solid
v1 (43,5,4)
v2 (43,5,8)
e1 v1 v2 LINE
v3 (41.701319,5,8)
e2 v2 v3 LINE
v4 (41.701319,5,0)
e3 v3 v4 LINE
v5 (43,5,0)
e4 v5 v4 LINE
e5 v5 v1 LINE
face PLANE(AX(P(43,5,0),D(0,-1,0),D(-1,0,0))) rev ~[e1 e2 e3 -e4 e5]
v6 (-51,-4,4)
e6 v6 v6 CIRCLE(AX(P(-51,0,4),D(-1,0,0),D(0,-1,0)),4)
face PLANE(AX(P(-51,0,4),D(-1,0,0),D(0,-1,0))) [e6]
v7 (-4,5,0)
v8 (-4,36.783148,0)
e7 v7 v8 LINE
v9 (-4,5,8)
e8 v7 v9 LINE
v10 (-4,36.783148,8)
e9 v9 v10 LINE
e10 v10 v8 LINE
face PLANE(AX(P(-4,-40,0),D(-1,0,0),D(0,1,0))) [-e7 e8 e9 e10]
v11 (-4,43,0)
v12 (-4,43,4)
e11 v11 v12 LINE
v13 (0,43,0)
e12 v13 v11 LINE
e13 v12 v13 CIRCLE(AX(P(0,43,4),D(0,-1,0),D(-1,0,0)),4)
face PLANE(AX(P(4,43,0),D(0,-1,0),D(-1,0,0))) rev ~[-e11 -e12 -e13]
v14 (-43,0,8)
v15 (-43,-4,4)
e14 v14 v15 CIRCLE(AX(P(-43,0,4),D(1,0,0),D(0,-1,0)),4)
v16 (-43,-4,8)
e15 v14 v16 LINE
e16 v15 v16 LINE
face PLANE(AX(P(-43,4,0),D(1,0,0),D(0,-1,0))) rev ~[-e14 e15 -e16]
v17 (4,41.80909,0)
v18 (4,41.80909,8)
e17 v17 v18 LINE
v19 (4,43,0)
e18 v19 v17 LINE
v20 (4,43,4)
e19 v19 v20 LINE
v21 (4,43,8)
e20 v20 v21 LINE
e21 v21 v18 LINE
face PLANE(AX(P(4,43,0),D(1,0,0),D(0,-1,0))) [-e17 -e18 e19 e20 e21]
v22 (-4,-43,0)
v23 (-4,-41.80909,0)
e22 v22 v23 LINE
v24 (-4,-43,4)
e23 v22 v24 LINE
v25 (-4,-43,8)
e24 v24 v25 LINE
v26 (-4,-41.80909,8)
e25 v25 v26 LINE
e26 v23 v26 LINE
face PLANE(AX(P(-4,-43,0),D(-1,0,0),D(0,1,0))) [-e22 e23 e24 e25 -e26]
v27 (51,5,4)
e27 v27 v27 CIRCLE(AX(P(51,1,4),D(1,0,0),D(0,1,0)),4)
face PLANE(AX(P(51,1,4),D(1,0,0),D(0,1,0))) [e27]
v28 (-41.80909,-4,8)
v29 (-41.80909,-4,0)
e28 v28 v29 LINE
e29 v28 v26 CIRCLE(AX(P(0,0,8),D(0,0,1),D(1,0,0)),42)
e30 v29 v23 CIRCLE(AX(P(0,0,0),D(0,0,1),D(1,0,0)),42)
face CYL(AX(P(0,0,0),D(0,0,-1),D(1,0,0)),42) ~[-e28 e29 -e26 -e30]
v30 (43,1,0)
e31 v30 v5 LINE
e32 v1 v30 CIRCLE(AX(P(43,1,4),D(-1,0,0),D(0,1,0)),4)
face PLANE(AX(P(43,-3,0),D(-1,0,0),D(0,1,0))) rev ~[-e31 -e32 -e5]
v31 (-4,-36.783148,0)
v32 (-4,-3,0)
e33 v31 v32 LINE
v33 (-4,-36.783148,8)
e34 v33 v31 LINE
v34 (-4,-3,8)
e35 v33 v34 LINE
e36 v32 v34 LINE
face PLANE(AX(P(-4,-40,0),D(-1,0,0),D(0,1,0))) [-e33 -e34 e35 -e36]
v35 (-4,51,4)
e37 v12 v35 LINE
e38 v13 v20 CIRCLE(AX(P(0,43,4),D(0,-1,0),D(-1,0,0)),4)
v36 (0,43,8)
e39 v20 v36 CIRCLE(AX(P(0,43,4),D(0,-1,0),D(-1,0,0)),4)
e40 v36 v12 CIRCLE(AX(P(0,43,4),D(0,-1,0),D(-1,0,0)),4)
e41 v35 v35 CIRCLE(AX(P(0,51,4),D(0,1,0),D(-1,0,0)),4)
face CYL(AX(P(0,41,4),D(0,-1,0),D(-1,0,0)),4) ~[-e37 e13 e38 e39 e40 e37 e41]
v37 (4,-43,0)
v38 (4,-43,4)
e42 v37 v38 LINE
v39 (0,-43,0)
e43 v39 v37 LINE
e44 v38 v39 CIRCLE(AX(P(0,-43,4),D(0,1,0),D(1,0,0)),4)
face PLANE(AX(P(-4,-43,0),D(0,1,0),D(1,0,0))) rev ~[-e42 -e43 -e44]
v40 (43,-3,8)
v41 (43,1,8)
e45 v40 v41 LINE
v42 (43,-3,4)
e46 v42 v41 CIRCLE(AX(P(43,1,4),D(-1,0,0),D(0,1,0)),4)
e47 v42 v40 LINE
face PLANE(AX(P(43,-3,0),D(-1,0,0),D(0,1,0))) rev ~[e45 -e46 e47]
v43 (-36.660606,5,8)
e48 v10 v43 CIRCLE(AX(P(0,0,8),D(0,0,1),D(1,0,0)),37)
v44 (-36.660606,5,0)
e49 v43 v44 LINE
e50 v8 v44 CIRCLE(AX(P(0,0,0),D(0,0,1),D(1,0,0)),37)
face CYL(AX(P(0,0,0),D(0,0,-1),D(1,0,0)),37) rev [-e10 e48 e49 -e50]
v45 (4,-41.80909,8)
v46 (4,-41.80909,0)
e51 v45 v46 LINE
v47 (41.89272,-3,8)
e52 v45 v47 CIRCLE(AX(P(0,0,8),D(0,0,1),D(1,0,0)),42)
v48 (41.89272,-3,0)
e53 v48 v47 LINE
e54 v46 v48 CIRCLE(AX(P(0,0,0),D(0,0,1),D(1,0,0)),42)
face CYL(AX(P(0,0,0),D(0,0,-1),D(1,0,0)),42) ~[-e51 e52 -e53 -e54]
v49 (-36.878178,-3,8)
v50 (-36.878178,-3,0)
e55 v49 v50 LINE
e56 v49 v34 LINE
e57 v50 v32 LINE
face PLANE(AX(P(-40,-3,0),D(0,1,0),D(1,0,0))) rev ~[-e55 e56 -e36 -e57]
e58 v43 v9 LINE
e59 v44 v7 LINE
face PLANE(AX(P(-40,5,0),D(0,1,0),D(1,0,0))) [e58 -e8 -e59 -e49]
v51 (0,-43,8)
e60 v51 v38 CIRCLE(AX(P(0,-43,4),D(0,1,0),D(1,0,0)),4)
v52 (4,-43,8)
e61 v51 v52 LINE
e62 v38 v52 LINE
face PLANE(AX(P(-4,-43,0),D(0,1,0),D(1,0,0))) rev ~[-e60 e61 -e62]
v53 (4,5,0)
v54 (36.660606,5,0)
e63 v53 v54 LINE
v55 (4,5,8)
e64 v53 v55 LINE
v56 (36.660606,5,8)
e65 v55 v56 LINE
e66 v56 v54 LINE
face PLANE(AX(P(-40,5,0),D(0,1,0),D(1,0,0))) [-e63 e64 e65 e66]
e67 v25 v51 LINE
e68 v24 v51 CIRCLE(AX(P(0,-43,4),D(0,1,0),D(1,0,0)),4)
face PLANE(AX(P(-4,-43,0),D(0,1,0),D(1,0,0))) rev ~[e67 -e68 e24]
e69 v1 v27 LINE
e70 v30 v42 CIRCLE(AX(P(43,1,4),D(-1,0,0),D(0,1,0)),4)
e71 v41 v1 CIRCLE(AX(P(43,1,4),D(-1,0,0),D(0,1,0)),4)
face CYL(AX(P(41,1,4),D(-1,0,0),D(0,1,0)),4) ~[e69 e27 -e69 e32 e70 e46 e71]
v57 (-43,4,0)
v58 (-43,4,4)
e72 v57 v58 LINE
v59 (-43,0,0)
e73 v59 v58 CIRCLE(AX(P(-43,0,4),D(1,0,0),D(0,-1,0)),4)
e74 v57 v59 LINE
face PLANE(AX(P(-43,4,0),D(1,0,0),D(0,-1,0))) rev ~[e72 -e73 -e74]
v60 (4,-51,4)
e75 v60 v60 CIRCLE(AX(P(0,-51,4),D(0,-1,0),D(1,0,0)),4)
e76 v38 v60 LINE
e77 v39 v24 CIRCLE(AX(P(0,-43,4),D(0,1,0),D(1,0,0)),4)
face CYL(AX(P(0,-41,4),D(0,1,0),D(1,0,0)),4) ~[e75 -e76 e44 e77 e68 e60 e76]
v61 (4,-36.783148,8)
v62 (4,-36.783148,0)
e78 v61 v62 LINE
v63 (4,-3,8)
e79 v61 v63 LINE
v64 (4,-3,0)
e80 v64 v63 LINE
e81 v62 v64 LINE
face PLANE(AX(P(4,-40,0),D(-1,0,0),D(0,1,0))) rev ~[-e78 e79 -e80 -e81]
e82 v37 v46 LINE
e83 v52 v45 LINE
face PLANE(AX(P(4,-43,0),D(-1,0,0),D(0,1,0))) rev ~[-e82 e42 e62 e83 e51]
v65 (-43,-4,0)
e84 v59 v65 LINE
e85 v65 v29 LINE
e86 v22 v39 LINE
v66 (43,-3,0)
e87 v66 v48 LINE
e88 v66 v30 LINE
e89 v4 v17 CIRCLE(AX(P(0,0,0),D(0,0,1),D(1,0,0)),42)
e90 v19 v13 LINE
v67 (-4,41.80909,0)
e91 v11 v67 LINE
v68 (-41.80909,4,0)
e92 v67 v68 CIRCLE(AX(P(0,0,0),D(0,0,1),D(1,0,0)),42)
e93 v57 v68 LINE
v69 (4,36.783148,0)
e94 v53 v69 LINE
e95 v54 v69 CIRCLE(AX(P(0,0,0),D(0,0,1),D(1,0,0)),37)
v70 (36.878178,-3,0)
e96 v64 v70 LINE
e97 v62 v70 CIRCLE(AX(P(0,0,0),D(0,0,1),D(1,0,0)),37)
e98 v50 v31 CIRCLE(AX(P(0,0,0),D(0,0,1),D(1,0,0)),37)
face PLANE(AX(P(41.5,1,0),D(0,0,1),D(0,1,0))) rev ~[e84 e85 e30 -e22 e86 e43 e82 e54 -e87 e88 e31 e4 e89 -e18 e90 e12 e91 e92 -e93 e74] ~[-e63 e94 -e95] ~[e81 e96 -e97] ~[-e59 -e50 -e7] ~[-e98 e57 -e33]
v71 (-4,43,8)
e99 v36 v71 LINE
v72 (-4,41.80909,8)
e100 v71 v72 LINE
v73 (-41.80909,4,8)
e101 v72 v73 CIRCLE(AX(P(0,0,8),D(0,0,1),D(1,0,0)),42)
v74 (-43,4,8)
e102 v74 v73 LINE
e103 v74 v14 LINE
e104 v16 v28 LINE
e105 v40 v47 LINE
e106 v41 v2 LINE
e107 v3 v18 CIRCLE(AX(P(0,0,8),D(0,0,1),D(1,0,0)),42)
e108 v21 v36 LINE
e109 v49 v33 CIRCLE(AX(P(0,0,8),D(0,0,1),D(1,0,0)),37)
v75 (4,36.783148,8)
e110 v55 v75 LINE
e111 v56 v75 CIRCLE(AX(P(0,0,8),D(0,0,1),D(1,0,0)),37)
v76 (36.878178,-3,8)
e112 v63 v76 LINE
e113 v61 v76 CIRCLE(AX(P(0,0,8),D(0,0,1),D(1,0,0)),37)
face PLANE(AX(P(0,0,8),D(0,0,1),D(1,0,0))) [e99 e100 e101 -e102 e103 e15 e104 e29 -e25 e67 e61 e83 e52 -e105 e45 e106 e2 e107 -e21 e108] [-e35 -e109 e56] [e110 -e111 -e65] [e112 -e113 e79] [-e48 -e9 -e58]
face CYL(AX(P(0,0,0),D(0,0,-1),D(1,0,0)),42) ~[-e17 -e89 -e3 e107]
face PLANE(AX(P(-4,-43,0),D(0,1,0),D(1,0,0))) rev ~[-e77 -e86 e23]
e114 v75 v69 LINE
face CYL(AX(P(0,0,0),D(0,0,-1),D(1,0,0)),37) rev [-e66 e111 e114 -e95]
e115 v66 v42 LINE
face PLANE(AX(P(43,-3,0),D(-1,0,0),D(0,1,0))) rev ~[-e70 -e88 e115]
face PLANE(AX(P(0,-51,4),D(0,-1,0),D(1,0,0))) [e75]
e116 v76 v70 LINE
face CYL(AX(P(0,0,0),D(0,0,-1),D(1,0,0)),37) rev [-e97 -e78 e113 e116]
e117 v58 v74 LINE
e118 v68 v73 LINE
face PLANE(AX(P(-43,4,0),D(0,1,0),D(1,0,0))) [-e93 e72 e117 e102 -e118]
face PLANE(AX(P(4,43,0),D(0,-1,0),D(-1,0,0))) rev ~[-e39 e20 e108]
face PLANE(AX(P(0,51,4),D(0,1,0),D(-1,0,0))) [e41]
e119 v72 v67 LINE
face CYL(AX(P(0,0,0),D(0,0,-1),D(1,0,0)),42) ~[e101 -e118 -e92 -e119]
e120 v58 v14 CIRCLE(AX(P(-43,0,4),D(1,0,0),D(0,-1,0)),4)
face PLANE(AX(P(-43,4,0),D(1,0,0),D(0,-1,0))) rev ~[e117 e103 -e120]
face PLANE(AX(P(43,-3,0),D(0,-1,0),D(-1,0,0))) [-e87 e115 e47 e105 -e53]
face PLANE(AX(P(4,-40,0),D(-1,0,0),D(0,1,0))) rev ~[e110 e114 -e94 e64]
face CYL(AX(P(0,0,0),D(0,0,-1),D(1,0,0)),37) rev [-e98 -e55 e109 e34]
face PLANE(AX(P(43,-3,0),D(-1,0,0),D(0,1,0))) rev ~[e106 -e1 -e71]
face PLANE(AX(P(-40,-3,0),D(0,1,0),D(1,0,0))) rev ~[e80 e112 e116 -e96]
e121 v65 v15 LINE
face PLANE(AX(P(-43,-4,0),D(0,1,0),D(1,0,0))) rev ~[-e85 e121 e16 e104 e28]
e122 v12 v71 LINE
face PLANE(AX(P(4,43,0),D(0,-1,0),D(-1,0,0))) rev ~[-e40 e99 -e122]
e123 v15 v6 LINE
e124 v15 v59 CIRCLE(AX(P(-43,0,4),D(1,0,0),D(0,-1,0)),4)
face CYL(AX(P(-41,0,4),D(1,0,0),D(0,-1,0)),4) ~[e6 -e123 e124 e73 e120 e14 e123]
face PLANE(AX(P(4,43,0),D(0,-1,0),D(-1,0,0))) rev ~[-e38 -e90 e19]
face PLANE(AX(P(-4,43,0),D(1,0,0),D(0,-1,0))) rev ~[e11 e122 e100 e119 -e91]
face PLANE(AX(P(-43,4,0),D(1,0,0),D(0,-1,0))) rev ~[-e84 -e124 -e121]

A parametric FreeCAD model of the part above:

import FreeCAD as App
import Part
import Sketcher


def faces_at(feature, points):
    """Names of the faces that lie closest to the given points."""
    faces = feature.Shape.Faces
    near = lambda p: min(range(len(faces)), key=lambda i: faces[i].distToShape(Part.Vertex(*p))[0])
    return sorted({f"Face{near(p) + 1}" for p in points})


def add_polygon(sketch, points):
    """Adds a closed chain of lines whose ends are joined by coincident constraints."""
    first, n = sketch.GeometryCount, len(points)
    for a, b in zip(points, points[1:] + points[:1]):
        sketch.addGeometry(Part.LineSegment(App.Vector(*a, 0), App.Vector(*b, 0)), False)
    for i in range(n):
        sketch.addConstraint(Sketcher.Constraint("Coincident", first + i, 2, first + (i + 1) % n, 1))

doc = App.newDocument("Part")
body = doc.addObject("PartDesign::Body", "Body")

# Sketch on XY plane
sketch1 = body.newObject("Sketcher::SketchObject", "Sketch")
sketch1.AttachmentSupport = (doc.getObject("XY_Plane"), [""])
sketch1.MapMode = "FlatFace"
sketch1.addGeometry(Part.Circle(App.Vector(0, 0, 0), App.Vector(0, 0, 1), 4), False)
sketch1.addConstraint(Sketcher.Constraint("Coincident", 0, 3, -1, 1))
sketch1.addConstraint(Sketcher.Constraint("Diameter", 0, 8.0))
pad1 = body.newObject("PartDesign::Pad", "Pad")
pad1.Profile = sketch1
pad1.Length = 10
body2 = doc.addObject("PartDesign::Body", "Body001")
doc.recompute()

body.Placement = App.Placement(App.Vector(0, 0, 0), App.Rotation(App.Vector(1, 0, 0), 90))
boolean = body2.newObject("PartDesign::Boolean", "Boolean")
boolean.Type = "Fuse"
boolean.addObjects([body])
body3 = doc.addObject("PartDesign::Body", "Body002")
doc.recompute()

body2.Placement = App.Placement(App.Vector(0, -41, 4), App.Rotation(App.Vector(0, 0, 1), 0))
boolean2 = body3.newObject("PartDesign::Boolean", "Boolean001")
boolean2.Type = "Fuse"
boolean2.addObjects([body2])
body4 = doc.addObject("PartDesign::Body", "Body003")

# Sketch on XY plane
sketch2 = body4.newObject("Sketcher::SketchObject", "Sketch001")
sketch2.AttachmentSupport = (doc.getObject("XY_Plane003"), [""])
sketch2.MapMode = "FlatFace"
add_polygon(sketch2, [(-4, -40), (-4, -43), (4, -43), (4, -40)])  # lines 0-3
sketch2.addConstraint(Sketcher.Constraint("Vertical", 0))
sketch2.addConstraint(Sketcher.Constraint("Horizontal", 1))
sketch2.addConstraint(Sketcher.Constraint("Vertical", 2))
sketch2.addConstraint(Sketcher.Constraint("Horizontal", 3))
sketch2.addConstraint(Sketcher.Constraint("DistanceX", 1, 1, 1, 2, 8.0))
sketch2.addConstraint(Sketcher.Constraint("DistanceY", 0, 2, 0, 1, 3.0))
sketch2.addConstraint(Sketcher.Constraint("DistanceX", 0, 2, -1, 1, 4.0))
sketch2.addConstraint(Sketcher.Constraint("DistanceY", 0, 2, -1, 1, 43.0))
pad2 = body4.newObject("PartDesign::Pad", "Pad001")
pad2.Profile = sketch2
pad2.Length = 8
doc.recompute()

boolean3 = body4.newObject("PartDesign::Boolean", "Boolean002")
boolean3.Type = "Fuse"
boolean3.addObjects([body3])
body5 = doc.addObject("PartDesign::Body", "Body004")
doc.recompute()

body4.Placement = App.Placement(App.Vector(0, 1, 0), App.Rotation(App.Vector(0, 0, 1), 90))
boolean4 = body5.newObject("PartDesign::Boolean", "Boolean003")
boolean4.Type = "Fuse"
boolean4.addObjects([body4])
body6 = doc.addObject("PartDesign::Body", "Body005")

# Sketch on XY plane
sketch3 = body6.newObject("Sketcher::SketchObject", "Sketch002")
sketch3.AttachmentSupport = (doc.getObject("XY_Plane005"), [""])
sketch3.MapMode = "FlatFace"
sketch3.addGeometry(Part.Circle(App.Vector(0, 0, 0), App.Vector(0, 0, 1), 4), False)
sketch3.addConstraint(Sketcher.Constraint("Coincident", 0, 3, -1, 1))
sketch3.addConstraint(Sketcher.Constraint("Diameter", 0, 8.0))
pad3 = body6.newObject("PartDesign::Pad", "Pad002")
pad3.Profile = sketch3
pad3.Length = 10
body7 = doc.addObject("PartDesign::Body", "Body006")
doc.recompute()

body6.Placement = App.Placement(App.Vector(0, 0, 0), App.Rotation(App.Vector(1, 0, 0), 90))
boolean5 = body7.newObject("PartDesign::Boolean", "Boolean004")
boolean5.Type = "Fuse"
boolean5.addObjects([body6])
body8 = doc.addObject("PartDesign::Body", "Body007")
doc.recompute()

body7.Placement = App.Placement(App.Vector(0, -41, 4), App.Rotation(App.Vector(0, 0, 1), 0))
boolean6 = body8.newObject("PartDesign::Boolean", "Boolean005")
boolean6.Type = "Fuse"
boolean6.addObjects([body7])
body9 = doc.addObject("PartDesign::Body", "Body008")

# Sketch on XY plane
sketch4 = body9.newObject("Sketcher::SketchObject", "Sketch003")
sketch4.AttachmentSupport = (doc.getObject("XY_Plane008"), [""])
sketch4.MapMode = "FlatFace"
add_polygon(sketch4, [(-4, -40), (-4, -43), (4, -43), (4, -40)])  # lines 0-3
sketch4.addConstraint(Sketcher.Constraint("Vertical", 0))
sketch4.addConstraint(Sketcher.Constraint("Horizontal", 1))
sketch4.addConstraint(Sketcher.Constraint("Vertical", 2))
sketch4.addConstraint(Sketcher.Constraint("Horizontal", 3))
sketch4.addConstraint(Sketcher.Constraint("DistanceX", 1, 1, 1, 2, 8.0))
sketch4.addConstraint(Sketcher.Constraint("DistanceY", 0, 2, 0, 1, 3.0))
sketch4.addConstraint(Sketcher.Constraint("DistanceX", 0, 2, -1, 1, 4.0))
sketch4.addConstraint(Sketcher.Constraint("DistanceY", 0, 2, -1, 1, 43.0))
pad4 = body9.newObject("PartDesign::Pad", "Pad003")
pad4.Profile = sketch4
pad4.Length = 8
doc.recompute()

boolean7 = body9.newObject("PartDesign::Boolean", "Boolean006")
boolean7.Type = "Fuse"
boolean7.addObjects([body8])
body10 = doc.addObject("PartDesign::Body", "Body009")

# Sketch on XY plane
sketch5 = body10.newObject("Sketcher::SketchObject", "Sketch004")
sketch5.AttachmentSupport = (doc.getObject("XY_Plane009"), [""])
sketch5.MapMode = "FlatFace"
sketch5.addGeometry(Part.Circle(App.Vector(0, 0, 0), App.Vector(0, 0, 1), 4), False)
sketch5.addConstraint(Sketcher.Constraint("Coincident", 0, 3, -1, 1))
sketch5.addConstraint(Sketcher.Constraint("Diameter", 0, 8.0))
pad5 = body10.newObject("PartDesign::Pad", "Pad004")
pad5.Profile = sketch5
pad5.Length = 10
body11 = doc.addObject("PartDesign::Body", "Body010")
doc.recompute()

body10.Placement = App.Placement(App.Vector(0, 0, 0), App.Rotation(App.Vector(1, 0, 0), 90))
boolean8 = body11.newObject("PartDesign::Boolean", "Boolean007")
boolean8.Type = "Fuse"
boolean8.addObjects([body10])
body12 = doc.addObject("PartDesign::Body", "Body011")
doc.recompute()

body11.Placement = App.Placement(App.Vector(0, -41, 4), App.Rotation(App.Vector(0, 0, 1), 0))
boolean9 = body12.newObject("PartDesign::Boolean", "Boolean008")
boolean9.Type = "Fuse"
boolean9.addObjects([body11])
body13 = doc.addObject("PartDesign::Body", "Body012")

# Sketch on XY plane
sketch6 = body13.newObject("Sketcher::SketchObject", "Sketch005")
sketch6.AttachmentSupport = (doc.getObject("XY_Plane012"), [""])
sketch6.MapMode = "FlatFace"
add_polygon(sketch6, [(-4, -40), (-4, -43), (4, -43), (4, -40)])  # lines 0-3
sketch6.addConstraint(Sketcher.Constraint("Vertical", 0))
sketch6.addConstraint(Sketcher.Constraint("Horizontal", 1))
sketch6.addConstraint(Sketcher.Constraint("Vertical", 2))
sketch6.addConstraint(Sketcher.Constraint("Horizontal", 3))
sketch6.addConstraint(Sketcher.Constraint("DistanceX", 1, 1, 1, 2, 8.0))
sketch6.addConstraint(Sketcher.Constraint("DistanceY", 0, 2, 0, 1, 3.0))
sketch6.addConstraint(Sketcher.Constraint("DistanceX", 0, 2, -1, 1, 4.0))
sketch6.addConstraint(Sketcher.Constraint("DistanceY", 0, 2, -1, 1, 43.0))
pad6 = body13.newObject("PartDesign::Pad", "Pad005")
pad6.Profile = sketch6
pad6.Length = 8
doc.recompute()

boolean10 = body13.newObject("PartDesign::Boolean", "Boolean009")
boolean10.Type = "Fuse"
boolean10.addObjects([body12])
body14 = doc.addObject("PartDesign::Body", "Body013")
doc.recompute()

body13.Placement = App.Placement(App.Vector(0, 0, 0), App.Rotation(App.Vector(0, 0, 1), 270))
boolean11 = body14.newObject("PartDesign::Boolean", "Boolean010")
boolean11.Type = "Fuse"
boolean11.addObjects([body13])
body15 = doc.addObject("PartDesign::Body", "Body014")

# Sketch on XY plane
sketch7 = body15.newObject("Sketcher::SketchObject", "Sketch006")
sketch7.AttachmentSupport = (doc.getObject("XY_Plane014"), [""])
sketch7.MapMode = "FlatFace"
add_polygon(sketch7, [(0, 8), (0, 0), (80, 0), (80, 8)])  # lines 0-3
sketch7.addConstraint(Sketcher.Constraint("Vertical", 0))
sketch7.addConstraint(Sketcher.Constraint("Horizontal", 1))
sketch7.addConstraint(Sketcher.Constraint("Vertical", 2))
sketch7.addConstraint(Sketcher.Constraint("Horizontal", 3))
sketch7.addConstraint(Sketcher.Constraint("Coincident", 0, 2, -1, 1))
sketch7.addConstraint(Sketcher.Constraint("DistanceX", 1, 1, 1, 2, 80.0))
sketch7.addConstraint(Sketcher.Constraint("DistanceY", 0, 2, 0, 1, 8.0))
pad7 = body15.newObject("PartDesign::Pad", "Pad006")
pad7.Profile = sketch7
pad7.Length = 8
body16 = doc.addObject("PartDesign::Body", "Body015")
doc.recompute()

body15.Placement = App.Placement(App.Vector(4, -40, 0), App.Rotation(App.Vector(0, 0, 1), 90))
boolean12 = body16.newObject("PartDesign::Boolean", "Boolean011")
boolean12.Type = "Fuse"
boolean12.addObjects([body15])
body17 = doc.addObject("PartDesign::Body", "Body016")

# Sketch on XY plane
sketch8 = body17.newObject("Sketcher::SketchObject", "Sketch007")
sketch8.AttachmentSupport = (doc.getObject("XY_Plane016"), [""])
sketch8.MapMode = "FlatFace"
sketch8.addGeometry(Part.Circle(App.Vector(0, 0, 0), App.Vector(0, 0, 1), 42), False)
sketch8.addConstraint(Sketcher.Constraint("Coincident", 0, 3, -1, 1))
sketch8.addConstraint(Sketcher.Constraint("Diameter", 0, 84.0))
pad8 = body17.newObject("PartDesign::Pad", "Pad007")
pad8.Profile = sketch8
pad8.Length = 8
doc.recompute()

thickness = body17.newObject("PartDesign::Thickness", "Thickness")
thickness.Base = (pad8, faces_at(pad8, [(0, 0, 0), (0, 0, 8)]))
thickness.Value = 5
thickness.Reversed = True
thickness.Join = "Arc"
body18 = doc.addObject("PartDesign::Body", "Body017")

# Sketch on XY plane
sketch9 = body18.newObject("Sketcher::SketchObject", "Sketch008")
sketch9.AttachmentSupport = (doc.getObject("XY_Plane017"), [""])
sketch9.MapMode = "FlatFace"
add_polygon(sketch9, [(-40, 5), (-40, -3), (40, -3), (40, 5)])  # lines 0-3
sketch9.addConstraint(Sketcher.Constraint("Vertical", 0))
sketch9.addConstraint(Sketcher.Constraint("Horizontal", 1))
sketch9.addConstraint(Sketcher.Constraint("Vertical", 2))
sketch9.addConstraint(Sketcher.Constraint("Horizontal", 3))
sketch9.addConstraint(Sketcher.Constraint("DistanceX", 1, 1, 1, 2, 80.0))
sketch9.addConstraint(Sketcher.Constraint("DistanceY", 0, 2, 0, 1, 8.0))
sketch9.addConstraint(Sketcher.Constraint("DistanceX", 0, 2, -1, 1, 40.0))
sketch9.addConstraint(Sketcher.Constraint("DistanceY", 0, 2, -1, 1, 3.0))
pad9 = body18.newObject("PartDesign::Pad", "Pad008")
pad9.Profile = sketch9
pad9.Length = 8
doc.recompute()

boolean13 = body18.newObject("PartDesign::Boolean", "Boolean012")
boolean13.Type = "Fuse"
boolean13.addObjects([body16])
doc.recompute()

boolean14 = body18.newObject("PartDesign::Boolean", "Boolean013")
boolean14.Type = "Fuse"
boolean14.addObjects([body17])
body19 = doc.addObject("PartDesign::Body", "Body018")

# Sketch on XY plane
sketch10 = body19.newObject("Sketcher::SketchObject", "Sketch009")
sketch10.AttachmentSupport = (doc.getObject("XY_Plane018"), [""])
sketch10.MapMode = "FlatFace"
sketch10.addGeometry(Part.Circle(App.Vector(0, 0, 0), App.Vector(0, 0, 1), 4), False)
sketch10.addConstraint(Sketcher.Constraint("Coincident", 0, 3, -1, 1))
sketch10.addConstraint(Sketcher.Constraint("Diameter", 0, 8.0))
pad10 = body19.newObject("PartDesign::Pad", "Pad009")
pad10.Profile = sketch10
pad10.Length = 10
body20 = doc.addObject("PartDesign::Body", "Body019")
doc.recompute()

body19.Placement = App.Placement(App.Vector(0, 0, 0), App.Rotation(App.Vector(1, 0, 0), 90))
boolean15 = body20.newObject("PartDesign::Boolean", "Boolean014")
boolean15.Type = "Fuse"
boolean15.addObjects([body19])
body21 = doc.addObject("PartDesign::Body", "Body020")
doc.recompute()

body20.Placement = App.Placement(App.Vector(0, -41, 4), App.Rotation(App.Vector(0, 0, 1), 0))
boolean16 = body21.newObject("PartDesign::Boolean", "Boolean015")
boolean16.Type = "Fuse"
boolean16.addObjects([body20])
body22 = doc.addObject("PartDesign::Body", "Body021")

# Sketch on XY plane
sketch11 = body22.newObject("Sketcher::SketchObject", "Sketch010")
sketch11.AttachmentSupport = (doc.getObject("XY_Plane021"), [""])
sketch11.MapMode = "FlatFace"
add_polygon(sketch11, [(-4, -40), (-4, -43), (4, -43), (4, -40)])  # lines 0-3
sketch11.addConstraint(Sketcher.Constraint("Vertical", 0))
sketch11.addConstraint(Sketcher.Constraint("Horizontal", 1))
sketch11.addConstraint(Sketcher.Constraint("Vertical", 2))
sketch11.addConstraint(Sketcher.Constraint("Horizontal", 3))
sketch11.addConstraint(Sketcher.Constraint("DistanceX", 1, 1, 1, 2, 8.0))
sketch11.addConstraint(Sketcher.Constraint("DistanceY", 0, 2, 0, 1, 3.0))
sketch11.addConstraint(Sketcher.Constraint("DistanceX", 0, 2, -1, 1, 4.0))
sketch11.addConstraint(Sketcher.Constraint("DistanceY", 0, 2, -1, 1, 43.0))
pad11 = body22.newObject("PartDesign::Pad", "Pad010")
pad11.Profile = sketch11
pad11.Length = 8
doc.recompute()

boolean17 = body22.newObject("PartDesign::Boolean", "Boolean016")
boolean17.Type = "Fuse"
boolean17.addObjects([body21])
body23 = doc.addObject("PartDesign::Body", "Body022")
body23.AllowCompound = True
doc.recompute()

body22.Placement = App.Placement(App.Vector(0, 0, 0), App.Rotation(App.Vector(0, 0, 1), 180))
boolean18 = body23.newObject("PartDesign::Boolean", "Boolean017")
boolean18.Type = "Fuse"
boolean18.addObjects([body22])
doc.recompute()

boolean19 = body23.newObject("PartDesign::Boolean", "Boolean018")
boolean19.Type = "Fuse"
boolean19.addObjects([body5])
doc.recompute()

boolean20 = body23.newObject("PartDesign::Boolean", "Boolean019")
boolean20.Type = "Fuse"
boolean20.addObjects([body9])
doc.recompute()

boolean21 = body23.newObject("PartDesign::Boolean", "Boolean020")
boolean21.Type = "Fuse"
boolean21.addObjects([body14])
doc.recompute()

boolean22 = body23.newObject("PartDesign::Boolean", "Boolean021")
boolean22.Type = "Fuse"
boolean22.addObjects([body18])

doc.recompute()
